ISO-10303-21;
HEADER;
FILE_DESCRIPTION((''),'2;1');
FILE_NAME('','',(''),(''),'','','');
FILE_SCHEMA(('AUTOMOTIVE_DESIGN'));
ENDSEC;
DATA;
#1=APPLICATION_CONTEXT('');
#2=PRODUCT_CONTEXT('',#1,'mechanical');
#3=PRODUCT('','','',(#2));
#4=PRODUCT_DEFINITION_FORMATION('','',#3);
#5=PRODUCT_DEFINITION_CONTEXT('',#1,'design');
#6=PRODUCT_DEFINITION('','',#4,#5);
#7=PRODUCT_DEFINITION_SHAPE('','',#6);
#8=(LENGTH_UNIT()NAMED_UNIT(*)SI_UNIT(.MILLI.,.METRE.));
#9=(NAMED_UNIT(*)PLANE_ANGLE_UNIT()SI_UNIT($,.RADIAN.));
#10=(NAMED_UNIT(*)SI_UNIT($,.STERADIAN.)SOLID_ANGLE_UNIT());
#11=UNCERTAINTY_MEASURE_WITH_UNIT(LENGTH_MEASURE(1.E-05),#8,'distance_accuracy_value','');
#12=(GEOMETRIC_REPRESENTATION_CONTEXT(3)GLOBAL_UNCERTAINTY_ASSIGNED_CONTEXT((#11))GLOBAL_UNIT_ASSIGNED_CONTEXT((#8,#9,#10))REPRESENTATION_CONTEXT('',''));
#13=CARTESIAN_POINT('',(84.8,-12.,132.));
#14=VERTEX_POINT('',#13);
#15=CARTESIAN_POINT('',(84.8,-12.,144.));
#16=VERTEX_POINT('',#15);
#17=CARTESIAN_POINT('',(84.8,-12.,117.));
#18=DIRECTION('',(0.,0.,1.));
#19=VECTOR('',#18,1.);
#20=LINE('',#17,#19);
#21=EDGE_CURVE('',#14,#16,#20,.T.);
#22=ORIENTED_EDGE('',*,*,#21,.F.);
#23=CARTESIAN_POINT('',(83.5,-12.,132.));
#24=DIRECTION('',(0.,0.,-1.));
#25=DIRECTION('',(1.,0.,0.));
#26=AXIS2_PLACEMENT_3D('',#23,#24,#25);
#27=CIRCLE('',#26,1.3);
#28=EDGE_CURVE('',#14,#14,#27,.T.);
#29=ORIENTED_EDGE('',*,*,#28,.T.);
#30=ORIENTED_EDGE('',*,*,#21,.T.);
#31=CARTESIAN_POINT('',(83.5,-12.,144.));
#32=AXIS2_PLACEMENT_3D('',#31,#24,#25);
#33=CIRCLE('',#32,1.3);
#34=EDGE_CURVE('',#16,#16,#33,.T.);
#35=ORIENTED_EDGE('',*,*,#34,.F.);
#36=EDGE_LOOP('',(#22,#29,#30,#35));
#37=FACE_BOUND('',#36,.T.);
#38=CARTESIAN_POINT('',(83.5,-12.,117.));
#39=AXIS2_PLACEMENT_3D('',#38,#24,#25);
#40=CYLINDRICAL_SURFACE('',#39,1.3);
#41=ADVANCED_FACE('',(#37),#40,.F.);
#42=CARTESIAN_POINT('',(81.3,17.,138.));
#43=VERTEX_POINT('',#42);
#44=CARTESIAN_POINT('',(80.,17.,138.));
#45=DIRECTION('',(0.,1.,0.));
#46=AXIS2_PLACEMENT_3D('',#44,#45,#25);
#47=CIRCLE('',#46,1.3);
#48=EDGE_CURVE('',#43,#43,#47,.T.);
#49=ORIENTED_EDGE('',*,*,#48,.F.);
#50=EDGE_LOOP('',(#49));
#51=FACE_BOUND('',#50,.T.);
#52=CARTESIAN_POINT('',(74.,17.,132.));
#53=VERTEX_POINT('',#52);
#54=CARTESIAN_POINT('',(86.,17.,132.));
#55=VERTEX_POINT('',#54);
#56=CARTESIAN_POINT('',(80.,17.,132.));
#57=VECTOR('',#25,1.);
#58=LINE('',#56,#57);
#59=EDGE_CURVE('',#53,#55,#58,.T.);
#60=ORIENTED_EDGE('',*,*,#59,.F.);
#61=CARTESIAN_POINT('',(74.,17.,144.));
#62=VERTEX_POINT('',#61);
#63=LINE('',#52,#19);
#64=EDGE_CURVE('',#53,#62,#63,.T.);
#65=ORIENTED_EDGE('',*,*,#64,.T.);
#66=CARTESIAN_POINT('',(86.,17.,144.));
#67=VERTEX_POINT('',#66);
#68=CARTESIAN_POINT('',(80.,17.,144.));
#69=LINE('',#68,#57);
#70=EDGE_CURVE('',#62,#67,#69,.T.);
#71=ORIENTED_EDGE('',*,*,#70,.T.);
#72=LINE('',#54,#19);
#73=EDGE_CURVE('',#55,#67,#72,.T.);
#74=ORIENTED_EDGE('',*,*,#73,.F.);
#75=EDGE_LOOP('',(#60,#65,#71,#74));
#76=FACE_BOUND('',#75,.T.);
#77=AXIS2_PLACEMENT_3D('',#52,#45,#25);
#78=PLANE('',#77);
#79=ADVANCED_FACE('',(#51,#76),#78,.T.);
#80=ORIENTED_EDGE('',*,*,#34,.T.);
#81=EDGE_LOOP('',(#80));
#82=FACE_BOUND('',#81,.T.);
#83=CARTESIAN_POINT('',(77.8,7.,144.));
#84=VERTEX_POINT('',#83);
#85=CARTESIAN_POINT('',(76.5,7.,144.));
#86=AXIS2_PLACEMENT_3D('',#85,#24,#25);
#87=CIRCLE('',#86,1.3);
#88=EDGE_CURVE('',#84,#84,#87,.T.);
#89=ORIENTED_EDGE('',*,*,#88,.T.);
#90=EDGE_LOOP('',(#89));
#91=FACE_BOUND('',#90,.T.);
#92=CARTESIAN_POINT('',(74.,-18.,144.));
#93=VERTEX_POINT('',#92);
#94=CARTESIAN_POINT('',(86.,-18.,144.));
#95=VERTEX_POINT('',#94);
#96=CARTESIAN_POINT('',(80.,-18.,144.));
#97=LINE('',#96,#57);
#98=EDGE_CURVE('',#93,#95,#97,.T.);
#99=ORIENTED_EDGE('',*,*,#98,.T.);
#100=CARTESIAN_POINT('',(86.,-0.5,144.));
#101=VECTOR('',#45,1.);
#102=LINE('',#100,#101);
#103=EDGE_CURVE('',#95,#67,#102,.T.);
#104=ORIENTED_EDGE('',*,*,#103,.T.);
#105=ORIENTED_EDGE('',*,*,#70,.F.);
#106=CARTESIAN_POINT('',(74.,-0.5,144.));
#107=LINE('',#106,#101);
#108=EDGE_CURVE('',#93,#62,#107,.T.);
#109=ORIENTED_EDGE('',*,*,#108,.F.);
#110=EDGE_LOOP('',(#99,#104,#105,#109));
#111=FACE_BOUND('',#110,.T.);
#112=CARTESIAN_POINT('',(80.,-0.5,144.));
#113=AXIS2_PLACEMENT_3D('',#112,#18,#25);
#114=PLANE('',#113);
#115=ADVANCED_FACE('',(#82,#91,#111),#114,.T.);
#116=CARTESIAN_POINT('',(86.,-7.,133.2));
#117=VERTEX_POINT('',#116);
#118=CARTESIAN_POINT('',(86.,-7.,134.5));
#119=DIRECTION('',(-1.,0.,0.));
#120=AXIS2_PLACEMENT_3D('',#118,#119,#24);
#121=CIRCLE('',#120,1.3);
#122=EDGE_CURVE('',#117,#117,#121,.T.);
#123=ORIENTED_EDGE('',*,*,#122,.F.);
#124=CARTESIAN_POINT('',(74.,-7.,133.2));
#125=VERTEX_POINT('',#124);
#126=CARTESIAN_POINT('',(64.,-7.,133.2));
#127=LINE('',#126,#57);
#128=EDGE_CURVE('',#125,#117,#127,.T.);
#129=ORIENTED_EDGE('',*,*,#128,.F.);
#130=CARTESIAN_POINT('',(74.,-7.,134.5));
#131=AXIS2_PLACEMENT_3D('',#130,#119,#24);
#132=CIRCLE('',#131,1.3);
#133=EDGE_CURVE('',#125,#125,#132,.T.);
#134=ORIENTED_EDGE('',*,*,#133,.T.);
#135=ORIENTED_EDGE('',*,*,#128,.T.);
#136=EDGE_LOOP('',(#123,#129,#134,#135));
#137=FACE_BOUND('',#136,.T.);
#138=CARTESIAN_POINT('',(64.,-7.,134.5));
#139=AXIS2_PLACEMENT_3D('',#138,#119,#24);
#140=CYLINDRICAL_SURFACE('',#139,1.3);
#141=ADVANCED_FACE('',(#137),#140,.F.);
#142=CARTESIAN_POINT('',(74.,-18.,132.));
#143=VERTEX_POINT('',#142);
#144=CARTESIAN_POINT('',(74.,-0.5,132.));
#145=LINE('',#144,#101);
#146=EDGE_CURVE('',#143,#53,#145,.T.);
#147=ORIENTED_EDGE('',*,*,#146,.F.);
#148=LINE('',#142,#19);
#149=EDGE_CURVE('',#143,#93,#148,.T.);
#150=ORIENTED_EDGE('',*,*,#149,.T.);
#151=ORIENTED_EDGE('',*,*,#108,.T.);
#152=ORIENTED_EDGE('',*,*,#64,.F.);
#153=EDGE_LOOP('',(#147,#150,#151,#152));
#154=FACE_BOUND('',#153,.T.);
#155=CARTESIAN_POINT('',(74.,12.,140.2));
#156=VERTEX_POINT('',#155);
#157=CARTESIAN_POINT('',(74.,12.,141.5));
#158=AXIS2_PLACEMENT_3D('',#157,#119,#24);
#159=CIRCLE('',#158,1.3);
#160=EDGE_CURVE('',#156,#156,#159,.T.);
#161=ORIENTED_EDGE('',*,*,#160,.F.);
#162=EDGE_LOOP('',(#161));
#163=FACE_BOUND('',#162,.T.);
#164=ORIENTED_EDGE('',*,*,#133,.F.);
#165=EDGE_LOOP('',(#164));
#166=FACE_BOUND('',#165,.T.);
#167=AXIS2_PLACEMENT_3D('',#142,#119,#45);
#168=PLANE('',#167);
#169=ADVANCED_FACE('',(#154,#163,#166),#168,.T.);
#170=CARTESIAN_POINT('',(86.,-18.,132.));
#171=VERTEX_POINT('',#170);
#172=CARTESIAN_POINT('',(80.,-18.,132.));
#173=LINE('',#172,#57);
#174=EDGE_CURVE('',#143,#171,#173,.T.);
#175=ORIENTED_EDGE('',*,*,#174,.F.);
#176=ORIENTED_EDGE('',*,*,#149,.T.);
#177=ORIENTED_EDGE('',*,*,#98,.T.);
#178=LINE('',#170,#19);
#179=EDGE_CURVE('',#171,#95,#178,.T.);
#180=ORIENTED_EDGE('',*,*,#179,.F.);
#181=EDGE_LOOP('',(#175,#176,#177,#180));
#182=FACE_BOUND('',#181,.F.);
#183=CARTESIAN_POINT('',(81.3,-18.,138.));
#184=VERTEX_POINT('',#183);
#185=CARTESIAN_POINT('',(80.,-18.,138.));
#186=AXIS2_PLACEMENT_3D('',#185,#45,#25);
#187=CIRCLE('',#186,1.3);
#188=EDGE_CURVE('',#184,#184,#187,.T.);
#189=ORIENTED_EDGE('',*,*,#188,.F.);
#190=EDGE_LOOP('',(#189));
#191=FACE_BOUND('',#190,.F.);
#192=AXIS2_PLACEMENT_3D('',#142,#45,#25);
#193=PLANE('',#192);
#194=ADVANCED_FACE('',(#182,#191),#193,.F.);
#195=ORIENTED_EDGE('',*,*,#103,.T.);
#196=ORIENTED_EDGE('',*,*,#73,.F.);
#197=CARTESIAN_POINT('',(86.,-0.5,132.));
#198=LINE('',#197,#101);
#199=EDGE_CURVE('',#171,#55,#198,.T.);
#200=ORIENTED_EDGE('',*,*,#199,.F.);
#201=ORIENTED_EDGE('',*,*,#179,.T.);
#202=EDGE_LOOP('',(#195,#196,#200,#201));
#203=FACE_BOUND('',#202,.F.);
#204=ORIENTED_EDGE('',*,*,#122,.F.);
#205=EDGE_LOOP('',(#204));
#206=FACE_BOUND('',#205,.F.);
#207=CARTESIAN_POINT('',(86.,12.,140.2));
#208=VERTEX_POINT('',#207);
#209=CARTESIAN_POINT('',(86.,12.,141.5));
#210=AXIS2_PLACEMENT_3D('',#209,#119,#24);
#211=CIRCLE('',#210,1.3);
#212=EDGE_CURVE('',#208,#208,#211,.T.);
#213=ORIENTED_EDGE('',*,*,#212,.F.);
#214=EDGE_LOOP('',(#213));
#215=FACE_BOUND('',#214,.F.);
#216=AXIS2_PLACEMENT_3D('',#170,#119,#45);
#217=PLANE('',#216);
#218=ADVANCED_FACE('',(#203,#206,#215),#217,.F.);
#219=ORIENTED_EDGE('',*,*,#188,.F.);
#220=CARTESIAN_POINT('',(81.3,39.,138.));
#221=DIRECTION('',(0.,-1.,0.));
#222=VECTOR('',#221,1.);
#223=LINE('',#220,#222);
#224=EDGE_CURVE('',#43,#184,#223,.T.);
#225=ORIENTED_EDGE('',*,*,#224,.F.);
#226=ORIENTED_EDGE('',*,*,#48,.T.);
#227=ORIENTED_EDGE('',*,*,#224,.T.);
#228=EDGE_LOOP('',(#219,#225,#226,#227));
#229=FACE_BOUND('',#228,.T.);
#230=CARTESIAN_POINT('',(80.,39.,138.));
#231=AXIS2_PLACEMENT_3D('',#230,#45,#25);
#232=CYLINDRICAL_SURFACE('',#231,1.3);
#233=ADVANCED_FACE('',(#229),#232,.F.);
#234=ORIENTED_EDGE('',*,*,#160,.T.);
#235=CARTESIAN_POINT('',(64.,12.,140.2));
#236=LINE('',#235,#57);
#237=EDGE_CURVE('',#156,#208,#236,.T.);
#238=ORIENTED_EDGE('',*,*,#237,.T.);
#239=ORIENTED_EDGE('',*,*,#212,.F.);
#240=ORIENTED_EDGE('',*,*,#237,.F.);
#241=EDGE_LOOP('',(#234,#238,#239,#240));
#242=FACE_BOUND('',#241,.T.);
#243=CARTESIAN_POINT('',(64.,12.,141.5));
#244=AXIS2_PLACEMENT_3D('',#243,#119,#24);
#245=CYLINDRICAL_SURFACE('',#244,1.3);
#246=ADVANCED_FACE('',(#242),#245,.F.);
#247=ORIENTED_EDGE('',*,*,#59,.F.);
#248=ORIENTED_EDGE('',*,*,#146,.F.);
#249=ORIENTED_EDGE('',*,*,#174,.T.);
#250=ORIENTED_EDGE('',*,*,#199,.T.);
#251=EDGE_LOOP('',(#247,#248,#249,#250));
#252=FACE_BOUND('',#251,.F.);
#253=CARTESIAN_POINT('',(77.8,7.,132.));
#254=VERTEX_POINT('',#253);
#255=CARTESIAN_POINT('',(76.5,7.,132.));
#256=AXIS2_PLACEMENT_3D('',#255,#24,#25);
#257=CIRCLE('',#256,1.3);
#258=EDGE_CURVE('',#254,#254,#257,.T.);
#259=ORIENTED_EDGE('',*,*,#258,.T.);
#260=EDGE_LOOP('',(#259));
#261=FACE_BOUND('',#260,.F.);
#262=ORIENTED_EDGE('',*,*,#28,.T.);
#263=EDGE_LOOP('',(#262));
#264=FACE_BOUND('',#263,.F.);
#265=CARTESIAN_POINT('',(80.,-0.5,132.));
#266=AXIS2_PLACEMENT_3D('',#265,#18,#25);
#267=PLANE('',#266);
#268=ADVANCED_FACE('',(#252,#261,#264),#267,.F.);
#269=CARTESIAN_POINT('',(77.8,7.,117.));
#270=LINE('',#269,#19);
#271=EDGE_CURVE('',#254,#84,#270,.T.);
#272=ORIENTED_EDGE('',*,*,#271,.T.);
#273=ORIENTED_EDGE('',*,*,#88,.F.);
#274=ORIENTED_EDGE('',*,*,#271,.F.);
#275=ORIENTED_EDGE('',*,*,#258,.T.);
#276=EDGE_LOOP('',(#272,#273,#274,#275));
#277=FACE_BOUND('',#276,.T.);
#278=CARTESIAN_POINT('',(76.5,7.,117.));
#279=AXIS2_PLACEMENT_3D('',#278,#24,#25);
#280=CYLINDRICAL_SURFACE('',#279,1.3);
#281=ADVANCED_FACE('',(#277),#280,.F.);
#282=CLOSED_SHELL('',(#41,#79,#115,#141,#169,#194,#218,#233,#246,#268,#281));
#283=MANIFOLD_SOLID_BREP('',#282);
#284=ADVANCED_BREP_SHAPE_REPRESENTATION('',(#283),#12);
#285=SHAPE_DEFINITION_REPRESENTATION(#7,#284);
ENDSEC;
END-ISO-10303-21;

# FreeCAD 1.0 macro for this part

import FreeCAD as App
import Part
import Sketcher
Q = App.Units.Quantity

doc = App.newDocument("Part")
body = doc.addObject("PartDesign::Body", "Body")

# Sketch on XY plane
sketch1 = body.newObject("Sketcher::SketchObject", "Sketch")
sketch1.AttachmentSupport = (doc.getObject("XY_Plane"), [""])
sketch1.MapMode = "FlatFace"
sketch1.addGeometry(Part.Circle(App.Vector(0, 0, 0), App.Vector(0, 0, 1), 1.3), False)
sketch1.addConstraint([
    Sketcher.Constraint("Coincident", 0, 3, -1, 1),
    Sketcher.Constraint("Diameter", 0, Q("2.6 mm")),
])
pad1 = body.newObject("PartDesign::Pad", "Pad")
pad1.Profile = sketch1
pad1.Length = 40
body2 = doc.addObject("PartDesign::Body", "Body001")
doc.recompute()

body.Placement = App.Placement(App.Vector(0, 0, 0), App.Rotation(App.Vector(0, 1, 0), 90))
boolean = body2.newObject("PartDesign::Boolean", "Boolean")
boolean.Type = "Fuse"
boolean.addObjects([body])
body3 = doc.addObject("PartDesign::Body", "Body002")
doc.recompute()

body2.Placement = App.Placement(App.Vector(-40, 12, 9.5), App.Rotation(App.Vector(0, 0, 1), 0))
boolean2 = body3.newObject("PartDesign::Boolean", "Boolean001")
boolean2.Type = "Fuse"
boolean2.addObjects([body2])
body4 = doc.addObject("PartDesign::Body", "Body003")

# Sketch on XY plane
sketch2 = body4.newObject("Sketcher::SketchObject", "Sketch001")
sketch2.AttachmentSupport = (doc.getObject("XY_Plane003"), [""])
sketch2.MapMode = "FlatFace"
sketch2.addGeometry(Part.Circle(App.Vector(0, 0, 0), App.Vector(0, 0, 1), 1.3), False)
sketch2.addConstraint([
    Sketcher.Constraint("Coincident", 0, 3, -1, 1),
    Sketcher.Constraint("Diameter", 0, Q("2.6 mm")),
])
pad2 = body4.newObject("PartDesign::Pad", "Pad001")
pad2.Profile = sketch2
pad2.Length = 40
body5 = doc.addObject("PartDesign::Body", "Body004")
doc.recompute()

body4.Placement = App.Placement(App.Vector(0, 0, 0), App.Rotation(App.Vector(0, 1, 0), 90))
boolean3 = body5.newObject("PartDesign::Boolean", "Boolean002")
boolean3.Type = "Fuse"
boolean3.addObjects([body4])
body6 = doc.addObject("PartDesign::Body", "Body005")
body6.AllowCompound = True
doc.recompute()

body5.Placement = App.Placement(App.Vector(-40, -7, 2.5), App.Rotation(App.Vector(0, 0, 1), 0))
boolean4 = body6.newObject("PartDesign::Boolean", "Boolean003")
boolean4.Type = "Fuse"
boolean4.addObjects([body5])
doc.recompute()

boolean5 = body6.newObject("PartDesign::Boolean", "Boolean004")
boolean5.Type = "Fuse"
boolean5.addObjects([body3])
body7 = doc.addObject("PartDesign::Body", "Body006")

# Sketch on XY plane
sketch3 = body7.newObject("Sketcher::SketchObject", "Sketch002")
sketch3.AttachmentSupport = (doc.getObject("XY_Plane006"), [""])
sketch3.MapMode = "FlatFace"
sketch3.addGeometry(Part.Circle(App.Vector(0, 0, 0), App.Vector(0, 0, 1), 1.3), False)
sketch3.addConstraint([
    Sketcher.Constraint("Coincident", 0, 3, -1, 1),
    Sketcher.Constraint("Diameter", 0, Q("2.6 mm")),
])
pad3 = body7.newObject("PartDesign::Pad", "Pad002")
pad3.Profile = sketch3
pad3.Length = 70
body8 = doc.addObject("PartDesign::Body", "Body007")
doc.recompute()

body7.Placement = App.Placement(App.Vector(0, 0, 0), App.Rotation(App.Vector(1, 0, 0), 90))
boolean6 = body8.newObject("PartDesign::Boolean", "Boolean005")
boolean6.Type = "Fuse"
boolean6.addObjects([body7])
body9 = doc.addObject("PartDesign::Body", "Body008")
body9.AllowCompound = True
doc.recompute()

body8.Placement = App.Placement(App.Vector(-24, 39, 6), App.Rotation(App.Vector(0, 0, 1), 0))
boolean7 = body9.newObject("PartDesign::Boolean", "Boolean006")
boolean7.Type = "Fuse"
boolean7.addObjects([body8])
doc.recompute()

boolean8 = body9.newObject("PartDesign::Boolean", "Boolean007")
boolean8.Type = "Fuse"
boolean8.addObjects([body6])
body10 = doc.addObject("PartDesign::Body", "Body009")
body10.AllowCompound = True

# Sketch on XY plane
sketch4 = body10.newObject("Sketcher::SketchObject", "Sketch003")
sketch4.AttachmentSupport = (doc.getObject("XY_Plane009"), [""])
sketch4.MapMode = "FlatFace"
sketch4.AttachmentOffset = App.Placement(App.Vector(0, 0, -15), App.Rotation())
sketch4.addGeometry(Part.Circle(App.Vector(-27.5, 7, 0), App.Vector(0, 0, 1), 1.3), False)
sketch4.addConstraint([
    Sketcher.Constraint("Diameter", 0, Q("2.6 mm")),
    Sketcher.Constraint("DistanceY", -1, 1, 0, 3, Q("7 mm")),
    Sketcher.Constraint("DistanceX", 0, 3, -1, 1, Q("27.5 mm")),
])
pad4 = body10.newObject("PartDesign::Pad", "Pad003")
pad4.Profile = sketch4
pad4.Length = 40
doc.recompute()

boolean9 = body10.newObject("PartDesign::Boolean", "Boolean008")
boolean9.Type = "Fuse"
boolean9.addObjects([body9])
body11 = doc.addObject("PartDesign::Body", "Body010")
body11.AllowCompound = True

# Sketch on XY plane
sketch5 = body11.newObject("Sketcher::SketchObject", "Sketch004")
sketch5.AttachmentSupport = (doc.getObject("XY_Plane010"), [""])
sketch5.MapMode = "FlatFace"
sketch5.AttachmentOffset = App.Placement(App.Vector(0, 0, -15), App.Rotation())
sketch5.addGeometry(Part.Circle(App.Vector(-20.5, -12, 0), App.Vector(0, 0, 1), 1.3), False)
sketch5.addConstraint([
    Sketcher.Constraint("Diameter", 0, Q("2.6 mm")),
    Sketcher.Constraint("DistanceY", 0, 3, -1, 1, Q("12 mm")),
    Sketcher.Constraint("DistanceX", 0, 3, -1, 1, Q("20.5 mm")),
])
pad5 = body11.newObject("PartDesign::Pad", "Pad004")
pad5.Profile = sketch5
pad5.Length = 40
doc.recompute()

boolean10 = body11.newObject("PartDesign::Boolean", "Boolean009")
boolean10.Type = "Fuse"
boolean10.addObjects([body10])
body12 = doc.addObject("PartDesign::Body", "Body011")

# Sketch on XY plane
sketch6 = body12.newObject("Sketcher::SketchObject", "Sketch005")
sketch6.AttachmentSupport = (doc.getObject("XY_Plane011"), [""])
sketch6.MapMode = "FlatFace"
sketch6.addGeometry([
    Part.LineSegment(App.Vector(-30, 17, 0), App.Vector(-30, -18, 0)),
    Part.LineSegment(App.Vector(-30, -18, 0), App.Vector(-18, -18, 0)),
    Part.LineSegment(App.Vector(-18, -18, 0), App.Vector(-18, 17, 0)),
    Part.LineSegment(App.Vector(-18, 17, 0), App.Vector(-30, 17, 0)),
], False)
sketch6.addConstraint([
    Sketcher.Constraint("Coincident", 0, 2, 1, 1),
    Sketcher.Constraint("Coincident", 1, 2, 2, 1),
    Sketcher.Constraint("Coincident", 2, 2, 3, 1),
    Sketcher.Constraint("Coincident", 3, 2, 0, 1),
    Sketcher.Constraint("Vertical", 0),
    Sketcher.Constraint("Horizontal", 1),
    Sketcher.Constraint("Vertical", 2),
    Sketcher.Constraint("Horizontal", 3),
    Sketcher.Constraint("DistanceX", 1, 1, 1, 2, Q("12 mm")),
    Sketcher.Constraint("DistanceY", 0, 2, 0, 1, Q("35 mm")),
    Sketcher.Constraint("DistanceX", 0, 2, -1, 1, Q("30 mm")),
    Sketcher.Constraint("DistanceY", 0, 2, -1, 1, Q("18 mm")),
])
pad6 = body12.newObject("PartDesign::Pad", "Pad005")
pad6.Profile = sketch6
pad6.Length = 12
doc.recompute()

boolean11 = body12.newObject("PartDesign::Boolean", "Boolean010")
boolean11.Type = "Cut"
boolean11.addObjects([body11])
body13 = doc.addObject("PartDesign::Body", "Body012")
doc.recompute()

body12.Placement = App.Placement(App.Vector(104, 0, 132), App.Rotation(App.Vector(0, 0, 1), 0))
boolean12 = body13.newObject("PartDesign::Boolean", "Boolean011")
boolean12.Type = "Fuse"
boolean12.addObjects([body12])

doc.recompute()
